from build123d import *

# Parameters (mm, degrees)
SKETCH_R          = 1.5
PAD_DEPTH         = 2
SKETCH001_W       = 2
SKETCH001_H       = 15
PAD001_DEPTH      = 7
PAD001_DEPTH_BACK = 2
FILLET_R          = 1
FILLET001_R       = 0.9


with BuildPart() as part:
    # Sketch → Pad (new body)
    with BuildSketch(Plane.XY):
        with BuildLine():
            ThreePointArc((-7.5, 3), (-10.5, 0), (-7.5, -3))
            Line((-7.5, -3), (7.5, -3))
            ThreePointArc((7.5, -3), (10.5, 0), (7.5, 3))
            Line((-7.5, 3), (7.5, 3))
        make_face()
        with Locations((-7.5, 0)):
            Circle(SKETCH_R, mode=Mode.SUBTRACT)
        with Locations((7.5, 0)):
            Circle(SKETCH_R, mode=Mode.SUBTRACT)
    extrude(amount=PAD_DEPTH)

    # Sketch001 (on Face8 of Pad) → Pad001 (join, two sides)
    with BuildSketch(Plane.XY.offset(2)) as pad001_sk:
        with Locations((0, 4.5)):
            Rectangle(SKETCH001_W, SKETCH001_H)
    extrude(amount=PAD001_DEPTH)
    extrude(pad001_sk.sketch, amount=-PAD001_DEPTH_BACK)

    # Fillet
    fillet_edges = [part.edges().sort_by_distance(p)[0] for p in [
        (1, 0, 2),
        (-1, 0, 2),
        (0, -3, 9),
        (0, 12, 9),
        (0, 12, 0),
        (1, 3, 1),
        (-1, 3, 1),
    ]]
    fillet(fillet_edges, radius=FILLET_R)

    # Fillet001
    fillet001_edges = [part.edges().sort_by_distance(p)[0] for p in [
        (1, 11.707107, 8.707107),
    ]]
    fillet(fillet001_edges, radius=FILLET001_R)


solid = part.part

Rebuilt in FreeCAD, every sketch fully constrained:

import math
import FreeCAD as App
import Part
import Sketcher
from FreeCAD import Vector


def edges_at(feature, points):
    """Names of the edges that pass closest to the given points."""
    edges = feature.Shape.Edges
    near = lambda p: min(range(len(edges)), key=lambda i: edges[i].distToShape(Part.Vertex(*p))[0])
    return sorted({f"Edge{near(p) + 1}" for p in points})

doc = App.newDocument("Part")
body = doc.addObject("PartDesign::Body", "Body")

sketch1 = body.newObject("Sketcher::SketchObject", "Sketch")
sketch1.AttachmentSupport = (doc.getObject("XY_Plane"), [""])
sketch1.MapMode = "FlatFace"
sketch1.addGeometry([
    Part.ArcOfCircle(Part.Circle(Vector(-7.5, 0, 0), Vector(0, 0, 1), 3), math.radians(90), math.radians(270)),
    Part.LineSegment(Vector(-7.5, -3, 0), Vector(7.5, -3, 0)),
    Part.ArcOfCircle(Part.Circle(Vector(7.5, 0, 0), Vector(0, 0, 1), 3), math.radians(-90), math.radians(90)),
    Part.LineSegment(Vector(7.5, 3, 0), Vector(-7.5, 3, 0)),
    Part.Circle(Vector(-7.5, 0, 0), Vector(0, 0, 1), 1.5),
    Part.Circle(Vector(7.5, 0, 0), Vector(0, 0, 1), 1.5),
], False)
sketch1.addConstraint([
    Sketcher.Constraint("Tangent", 0, 2, 1, 1),
    Sketcher.Constraint("Tangent", 1, 2, 2, 1),
    Sketcher.Constraint("Tangent", 2, 2, 3, 1),
    Sketcher.Constraint("Tangent", 3, 2, 0, 1),
    Sketcher.Constraint("Horizontal", 1),
    Sketcher.Constraint("Horizontal", 3),
    Sketcher.Constraint("Coincident", 4, 3, 0, 3),
    Sketcher.Constraint("Coincident", 5, 3, 2, 3),
    Sketcher.Constraint("Equal", 4, 5),
    Sketcher.Constraint("Symmetric", 0, 3, 2, 3, -1, 1),
    Sketcher.Constraint("Diameter", 4, 3.0),
    Sketcher.Constraint("Radius", 0, 3.0),
    Sketcher.Constraint("DistanceX", 1, 1, 1, 2, 15.0),
])
pad1 = body.newObject("PartDesign::Pad", "Pad")
pad1.Profile = sketch1
pad1.Length = 2

sketch2 = body.newObject("Sketcher::SketchObject", "Sketch001")
sketch2.AttachmentSupport = (doc.getObject("XY_Plane"), [""])
sketch2.MapMode = "FlatFace"
sketch2.AttachmentOffset = App.Placement(Vector(0, 0, 2), App.Rotation())
sketch2.addGeometry([
    Part.LineSegment(Vector(-1, 12, 0), Vector(-1, -3, 0)),
    Part.LineSegment(Vector(-1, -3, 0), Vector(1, -3, 0)),
    Part.LineSegment(Vector(1, -3, 0), Vector(1, 12, 0)),
    Part.LineSegment(Vector(1, 12, 0), Vector(-1, 12, 0)),
], False)
sketch2.addConstraint([
    Sketcher.Constraint("Coincident", 0, 2, 1, 1),
    Sketcher.Constraint("Coincident", 1, 2, 2, 1),
    Sketcher.Constraint("Coincident", 2, 2, 3, 1),
    Sketcher.Constraint("Coincident", 3, 2, 0, 1),
    Sketcher.Constraint("Vertical", 0),
    Sketcher.Constraint("Horizontal", 1),
    Sketcher.Constraint("Vertical", 2),
    Sketcher.Constraint("Horizontal", 3),
    Sketcher.Constraint("DistanceX", 1, 1, 1, 2, 2.0),
    Sketcher.Constraint("DistanceY", 0, 2, 0, 1, 15.0),
    Sketcher.Constraint("DistanceX", 0, 2, -1, 1, 1.0),
    Sketcher.Constraint("DistanceY", 0, 2, -1, 1, 3.0),
])
pad2 = body.newObject("PartDesign::Pad", "Pad001")
pad2.Profile = sketch2
pad2.Type = "TwoLengths"
pad2.Length = 7
pad2.Length2 = 2
doc.recompute()

fillet = body.newObject("PartDesign::Fillet", "Fillet")
fillet.Base = (pad2, edges_at(pad2, [
    (1, 0, 2),
    (-1, 0, 2),
    (0, -3, 9),
    (0, 12, 9),
    (0, 12, 0),
    (1, 3, 1),
    (-1, 3, 1),
]))
fillet.Radius = 1
doc.recompute()

fillet2 = body.newObject("PartDesign::Fillet", "Fillet001")
fillet2.Base = (fillet, edges_at(fillet, [(1, 11.707, 8.707)]))
fillet2.Radius = 0.9

doc.recompute()
